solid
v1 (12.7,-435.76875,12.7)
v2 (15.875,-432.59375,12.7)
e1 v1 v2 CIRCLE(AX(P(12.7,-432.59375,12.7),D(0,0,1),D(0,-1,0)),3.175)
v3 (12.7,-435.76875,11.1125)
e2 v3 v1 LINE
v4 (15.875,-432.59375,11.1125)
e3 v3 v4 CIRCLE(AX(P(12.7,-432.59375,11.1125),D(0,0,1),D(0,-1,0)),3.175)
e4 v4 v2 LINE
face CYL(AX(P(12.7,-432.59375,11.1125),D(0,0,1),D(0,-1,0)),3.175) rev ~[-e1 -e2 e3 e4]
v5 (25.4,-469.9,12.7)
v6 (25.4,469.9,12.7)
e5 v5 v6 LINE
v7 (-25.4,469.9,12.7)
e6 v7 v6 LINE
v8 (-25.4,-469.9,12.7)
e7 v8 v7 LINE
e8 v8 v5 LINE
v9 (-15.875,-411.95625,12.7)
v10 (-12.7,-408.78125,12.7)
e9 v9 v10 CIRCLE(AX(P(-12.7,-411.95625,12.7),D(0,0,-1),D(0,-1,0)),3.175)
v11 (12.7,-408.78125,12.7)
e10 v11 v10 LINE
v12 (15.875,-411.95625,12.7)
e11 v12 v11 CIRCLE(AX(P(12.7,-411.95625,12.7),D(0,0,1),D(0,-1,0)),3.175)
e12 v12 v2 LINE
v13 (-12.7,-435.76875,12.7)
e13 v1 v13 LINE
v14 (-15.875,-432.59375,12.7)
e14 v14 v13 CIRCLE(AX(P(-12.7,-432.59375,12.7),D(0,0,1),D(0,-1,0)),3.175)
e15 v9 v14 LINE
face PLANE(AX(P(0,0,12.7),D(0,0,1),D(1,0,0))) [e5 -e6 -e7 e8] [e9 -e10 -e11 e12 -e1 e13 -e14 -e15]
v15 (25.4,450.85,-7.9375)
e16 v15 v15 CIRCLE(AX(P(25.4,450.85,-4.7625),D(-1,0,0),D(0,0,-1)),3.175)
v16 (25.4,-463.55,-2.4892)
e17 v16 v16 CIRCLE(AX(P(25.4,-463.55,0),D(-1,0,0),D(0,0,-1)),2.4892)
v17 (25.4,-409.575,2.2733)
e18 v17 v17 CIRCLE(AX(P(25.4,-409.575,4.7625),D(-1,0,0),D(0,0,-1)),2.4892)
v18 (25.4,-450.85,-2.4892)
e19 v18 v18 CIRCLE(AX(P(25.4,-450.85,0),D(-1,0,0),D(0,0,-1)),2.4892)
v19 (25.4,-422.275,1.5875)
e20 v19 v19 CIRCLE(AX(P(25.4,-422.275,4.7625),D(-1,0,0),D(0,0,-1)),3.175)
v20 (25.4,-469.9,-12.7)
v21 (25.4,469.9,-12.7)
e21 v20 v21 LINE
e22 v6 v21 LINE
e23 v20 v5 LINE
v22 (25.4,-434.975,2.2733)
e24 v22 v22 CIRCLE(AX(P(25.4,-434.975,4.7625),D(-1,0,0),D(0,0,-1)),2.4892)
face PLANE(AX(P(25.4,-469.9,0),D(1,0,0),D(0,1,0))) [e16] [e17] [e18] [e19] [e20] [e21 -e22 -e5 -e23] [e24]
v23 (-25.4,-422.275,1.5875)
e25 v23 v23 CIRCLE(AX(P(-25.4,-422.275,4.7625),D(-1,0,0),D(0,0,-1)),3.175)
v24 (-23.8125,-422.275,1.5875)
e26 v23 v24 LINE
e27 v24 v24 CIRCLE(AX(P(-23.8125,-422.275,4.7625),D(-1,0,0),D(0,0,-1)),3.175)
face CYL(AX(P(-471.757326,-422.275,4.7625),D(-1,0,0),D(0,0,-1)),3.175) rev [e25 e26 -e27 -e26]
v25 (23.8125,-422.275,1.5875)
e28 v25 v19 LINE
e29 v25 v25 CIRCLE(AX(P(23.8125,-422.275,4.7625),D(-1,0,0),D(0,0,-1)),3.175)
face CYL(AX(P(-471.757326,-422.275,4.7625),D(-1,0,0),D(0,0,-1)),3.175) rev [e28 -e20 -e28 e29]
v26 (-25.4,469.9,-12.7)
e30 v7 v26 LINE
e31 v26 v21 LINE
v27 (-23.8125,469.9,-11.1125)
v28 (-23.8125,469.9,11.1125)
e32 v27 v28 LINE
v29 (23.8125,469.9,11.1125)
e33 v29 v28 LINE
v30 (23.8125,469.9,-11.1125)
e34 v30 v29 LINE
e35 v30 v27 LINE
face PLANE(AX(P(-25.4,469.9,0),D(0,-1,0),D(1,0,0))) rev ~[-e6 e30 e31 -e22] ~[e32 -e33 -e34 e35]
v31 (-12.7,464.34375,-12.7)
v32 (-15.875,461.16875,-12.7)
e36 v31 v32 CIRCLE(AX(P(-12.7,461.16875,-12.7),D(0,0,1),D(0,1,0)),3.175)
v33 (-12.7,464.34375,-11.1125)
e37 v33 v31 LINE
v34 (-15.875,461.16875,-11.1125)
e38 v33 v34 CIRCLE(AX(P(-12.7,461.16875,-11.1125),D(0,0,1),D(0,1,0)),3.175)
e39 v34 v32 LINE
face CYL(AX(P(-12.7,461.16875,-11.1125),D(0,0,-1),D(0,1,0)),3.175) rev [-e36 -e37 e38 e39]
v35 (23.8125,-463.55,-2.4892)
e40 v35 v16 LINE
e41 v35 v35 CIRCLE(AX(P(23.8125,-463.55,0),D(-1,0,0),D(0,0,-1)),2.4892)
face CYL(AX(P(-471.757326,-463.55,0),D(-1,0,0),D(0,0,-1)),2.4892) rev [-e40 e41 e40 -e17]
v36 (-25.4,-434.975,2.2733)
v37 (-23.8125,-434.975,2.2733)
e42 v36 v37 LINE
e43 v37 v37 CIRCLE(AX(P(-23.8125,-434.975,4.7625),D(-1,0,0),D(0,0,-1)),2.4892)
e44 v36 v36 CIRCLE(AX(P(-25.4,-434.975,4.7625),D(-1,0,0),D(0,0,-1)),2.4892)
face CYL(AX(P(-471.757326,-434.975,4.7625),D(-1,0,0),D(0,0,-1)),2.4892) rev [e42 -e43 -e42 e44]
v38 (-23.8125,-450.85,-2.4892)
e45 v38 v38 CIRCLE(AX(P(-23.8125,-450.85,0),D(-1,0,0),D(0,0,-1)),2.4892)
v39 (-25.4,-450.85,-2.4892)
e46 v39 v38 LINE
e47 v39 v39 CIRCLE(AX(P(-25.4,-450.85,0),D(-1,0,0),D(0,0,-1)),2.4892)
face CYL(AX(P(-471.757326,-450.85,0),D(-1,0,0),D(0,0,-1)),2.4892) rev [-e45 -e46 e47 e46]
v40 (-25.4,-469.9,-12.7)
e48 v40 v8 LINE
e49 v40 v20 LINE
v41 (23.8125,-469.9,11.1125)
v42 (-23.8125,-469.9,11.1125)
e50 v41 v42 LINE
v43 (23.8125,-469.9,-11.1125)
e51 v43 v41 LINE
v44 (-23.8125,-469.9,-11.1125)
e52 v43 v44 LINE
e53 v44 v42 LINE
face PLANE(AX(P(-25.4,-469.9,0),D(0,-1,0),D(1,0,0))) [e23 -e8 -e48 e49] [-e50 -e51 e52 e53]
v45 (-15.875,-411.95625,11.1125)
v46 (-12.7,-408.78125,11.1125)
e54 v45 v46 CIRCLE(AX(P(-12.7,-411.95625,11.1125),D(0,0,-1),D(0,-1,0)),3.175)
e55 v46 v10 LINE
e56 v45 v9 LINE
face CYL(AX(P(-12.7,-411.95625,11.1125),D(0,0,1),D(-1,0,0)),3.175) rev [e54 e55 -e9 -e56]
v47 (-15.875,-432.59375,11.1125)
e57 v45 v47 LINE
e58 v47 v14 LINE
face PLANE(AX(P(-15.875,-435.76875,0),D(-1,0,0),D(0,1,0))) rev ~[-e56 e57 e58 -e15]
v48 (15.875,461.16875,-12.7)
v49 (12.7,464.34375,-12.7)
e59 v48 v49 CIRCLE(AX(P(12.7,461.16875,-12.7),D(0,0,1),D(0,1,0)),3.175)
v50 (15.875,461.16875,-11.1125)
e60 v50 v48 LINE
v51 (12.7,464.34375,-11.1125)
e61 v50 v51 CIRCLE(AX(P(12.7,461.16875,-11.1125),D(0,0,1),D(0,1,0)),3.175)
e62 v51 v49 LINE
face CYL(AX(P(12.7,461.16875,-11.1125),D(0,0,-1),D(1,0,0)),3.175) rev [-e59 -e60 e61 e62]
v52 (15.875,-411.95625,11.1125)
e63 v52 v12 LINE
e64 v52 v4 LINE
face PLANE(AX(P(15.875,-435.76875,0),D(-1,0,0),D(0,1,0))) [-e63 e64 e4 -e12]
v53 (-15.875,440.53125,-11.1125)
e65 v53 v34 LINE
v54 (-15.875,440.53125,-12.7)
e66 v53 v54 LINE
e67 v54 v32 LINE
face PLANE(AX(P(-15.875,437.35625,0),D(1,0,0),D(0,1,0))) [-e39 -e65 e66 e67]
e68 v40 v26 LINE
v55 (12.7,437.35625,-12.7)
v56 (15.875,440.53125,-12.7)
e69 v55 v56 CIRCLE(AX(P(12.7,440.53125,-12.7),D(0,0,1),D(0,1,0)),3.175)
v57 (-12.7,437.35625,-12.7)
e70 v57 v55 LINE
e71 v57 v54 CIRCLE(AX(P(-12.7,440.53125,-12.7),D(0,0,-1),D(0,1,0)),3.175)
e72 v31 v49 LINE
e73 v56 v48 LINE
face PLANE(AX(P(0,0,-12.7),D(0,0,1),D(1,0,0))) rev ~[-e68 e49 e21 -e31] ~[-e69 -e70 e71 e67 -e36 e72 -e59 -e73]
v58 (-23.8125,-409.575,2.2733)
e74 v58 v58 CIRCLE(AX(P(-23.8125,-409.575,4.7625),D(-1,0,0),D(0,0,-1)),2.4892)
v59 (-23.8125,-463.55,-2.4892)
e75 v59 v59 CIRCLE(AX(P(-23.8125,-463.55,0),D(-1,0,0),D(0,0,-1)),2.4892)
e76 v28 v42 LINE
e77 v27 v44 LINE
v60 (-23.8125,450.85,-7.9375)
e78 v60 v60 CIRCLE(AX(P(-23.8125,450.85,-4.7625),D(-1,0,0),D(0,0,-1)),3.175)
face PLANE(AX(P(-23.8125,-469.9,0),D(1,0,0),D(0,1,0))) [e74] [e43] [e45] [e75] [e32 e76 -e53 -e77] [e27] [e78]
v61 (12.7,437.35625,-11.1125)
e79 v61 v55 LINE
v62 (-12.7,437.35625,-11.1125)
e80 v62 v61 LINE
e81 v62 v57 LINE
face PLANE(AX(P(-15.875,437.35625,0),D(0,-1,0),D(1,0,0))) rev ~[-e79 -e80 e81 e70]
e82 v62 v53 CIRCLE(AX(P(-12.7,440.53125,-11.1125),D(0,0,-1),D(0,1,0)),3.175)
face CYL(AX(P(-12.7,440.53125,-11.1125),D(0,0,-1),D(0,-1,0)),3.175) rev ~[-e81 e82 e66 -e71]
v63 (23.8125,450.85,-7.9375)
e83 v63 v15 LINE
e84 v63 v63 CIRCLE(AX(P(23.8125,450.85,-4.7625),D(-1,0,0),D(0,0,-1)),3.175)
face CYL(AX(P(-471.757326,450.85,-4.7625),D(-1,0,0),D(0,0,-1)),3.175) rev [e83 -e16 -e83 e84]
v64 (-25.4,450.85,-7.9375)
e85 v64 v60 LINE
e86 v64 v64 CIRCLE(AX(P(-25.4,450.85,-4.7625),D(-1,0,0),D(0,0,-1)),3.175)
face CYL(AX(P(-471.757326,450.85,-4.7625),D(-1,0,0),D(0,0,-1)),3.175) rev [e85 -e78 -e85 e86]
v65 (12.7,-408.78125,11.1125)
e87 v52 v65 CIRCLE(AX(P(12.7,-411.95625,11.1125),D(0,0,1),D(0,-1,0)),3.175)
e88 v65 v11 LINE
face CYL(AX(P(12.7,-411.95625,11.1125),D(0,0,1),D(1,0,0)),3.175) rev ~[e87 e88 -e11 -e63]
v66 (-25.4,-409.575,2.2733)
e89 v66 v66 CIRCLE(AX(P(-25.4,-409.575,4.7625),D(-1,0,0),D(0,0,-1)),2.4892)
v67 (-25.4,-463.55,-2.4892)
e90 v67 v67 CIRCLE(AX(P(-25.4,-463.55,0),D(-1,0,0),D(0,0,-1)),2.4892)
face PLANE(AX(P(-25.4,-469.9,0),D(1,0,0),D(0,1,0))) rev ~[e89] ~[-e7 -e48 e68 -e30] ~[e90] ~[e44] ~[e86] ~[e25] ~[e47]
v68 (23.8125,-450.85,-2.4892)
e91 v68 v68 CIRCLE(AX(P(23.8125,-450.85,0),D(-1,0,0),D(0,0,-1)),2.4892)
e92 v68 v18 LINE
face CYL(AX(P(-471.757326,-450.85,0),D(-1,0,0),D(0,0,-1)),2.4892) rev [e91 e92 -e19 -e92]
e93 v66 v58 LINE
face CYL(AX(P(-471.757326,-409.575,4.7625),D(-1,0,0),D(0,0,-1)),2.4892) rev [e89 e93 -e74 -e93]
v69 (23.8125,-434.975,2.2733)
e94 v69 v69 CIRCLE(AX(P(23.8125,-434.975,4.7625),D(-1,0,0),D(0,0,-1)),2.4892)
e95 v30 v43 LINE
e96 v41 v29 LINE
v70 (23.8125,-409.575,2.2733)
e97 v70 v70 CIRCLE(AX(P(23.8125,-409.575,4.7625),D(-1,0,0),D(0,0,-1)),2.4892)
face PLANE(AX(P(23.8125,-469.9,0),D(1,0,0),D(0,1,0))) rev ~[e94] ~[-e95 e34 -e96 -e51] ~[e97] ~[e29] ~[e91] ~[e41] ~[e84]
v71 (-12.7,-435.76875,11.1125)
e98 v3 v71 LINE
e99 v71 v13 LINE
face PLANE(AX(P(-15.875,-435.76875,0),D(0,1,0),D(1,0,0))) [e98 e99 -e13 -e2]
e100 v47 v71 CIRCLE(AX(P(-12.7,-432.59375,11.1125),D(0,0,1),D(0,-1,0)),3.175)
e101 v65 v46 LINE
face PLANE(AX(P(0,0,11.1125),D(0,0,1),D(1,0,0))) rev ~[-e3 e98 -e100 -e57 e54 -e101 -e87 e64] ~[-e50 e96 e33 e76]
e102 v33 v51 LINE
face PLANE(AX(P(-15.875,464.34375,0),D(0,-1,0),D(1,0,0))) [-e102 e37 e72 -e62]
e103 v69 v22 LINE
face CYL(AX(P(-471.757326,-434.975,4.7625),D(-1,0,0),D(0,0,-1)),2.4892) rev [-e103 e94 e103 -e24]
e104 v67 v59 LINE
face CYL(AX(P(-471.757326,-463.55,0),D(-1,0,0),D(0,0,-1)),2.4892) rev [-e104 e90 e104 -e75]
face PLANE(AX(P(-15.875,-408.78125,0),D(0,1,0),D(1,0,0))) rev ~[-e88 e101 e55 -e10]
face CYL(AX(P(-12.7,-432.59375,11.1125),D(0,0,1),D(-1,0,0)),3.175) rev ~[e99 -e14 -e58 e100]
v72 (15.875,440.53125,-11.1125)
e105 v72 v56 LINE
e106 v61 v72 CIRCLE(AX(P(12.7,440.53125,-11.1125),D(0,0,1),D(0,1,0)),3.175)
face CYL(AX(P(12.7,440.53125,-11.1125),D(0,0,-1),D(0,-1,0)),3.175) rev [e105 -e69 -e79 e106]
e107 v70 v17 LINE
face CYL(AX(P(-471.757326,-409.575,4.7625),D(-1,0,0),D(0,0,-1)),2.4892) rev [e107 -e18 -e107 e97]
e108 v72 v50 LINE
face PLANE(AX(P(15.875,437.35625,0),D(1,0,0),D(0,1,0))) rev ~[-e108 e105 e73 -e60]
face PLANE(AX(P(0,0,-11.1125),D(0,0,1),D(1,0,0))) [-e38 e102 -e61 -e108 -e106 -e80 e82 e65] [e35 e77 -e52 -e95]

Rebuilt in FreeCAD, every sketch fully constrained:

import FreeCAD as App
import Part
import Sketcher

V = App.Vector
Q = App.Units.Quantity


def edges_at(feature, points):
    """Names of the edges that pass closest to the given points."""
    edges = feature.Shape.Edges
    near = lambda p: min(range(len(edges)), key=lambda i: edges[i].distToShape(Part.Vertex(*p))[0])
    return sorted({f"Edge{near(p) + 1}" for p in points})


def faces_at(feature, points):
    """Names of the faces that lie closest to the given points."""
    faces = feature.Shape.Faces
    near = lambda p: min(range(len(faces)), key=lambda i: faces[i].distToShape(Part.Vertex(*p))[0])
    return sorted({f"Face{near(p) + 1}" for p in points})


def add_polygon(sketch, points):
    """Adds a closed chain of lines whose ends are joined by coincident constraints."""
    first, n = sketch.GeometryCount, len(points)
    for a, b in zip(points, points[1:] + points[:1]):
        sketch.addGeometry(Part.LineSegment(App.Vector(*a, 0), App.Vector(*b, 0)), False)
    for i in range(n):
        sketch.addConstraint(Sketcher.Constraint("Coincident", first + i, 2, first + (i + 1) % n, 1))

doc = App.newDocument("Part")
body = doc.addObject("PartDesign::Body", "Body")

# Sketch on XY plane
sketch1 = body.newObject("Sketcher::SketchObject", "Sketch")
sketch1.AttachmentSupport = (doc.getObject("XY_Plane"), [""])
sketch1.MapMode = "FlatFace"
add_polygon(sketch1, [(-25.4, 469.9), (-25.4, -469.9), (25.4, -469.9), (25.4, 469.9)])  # lines 0-3
sketch1.addConstraint(Sketcher.Constraint("Vertical", 0))
sketch1.addConstraint(Sketcher.Constraint("Horizontal", 1))
sketch1.addConstraint(Sketcher.Constraint("Vertical", 2))
sketch1.addConstraint(Sketcher.Constraint("Horizontal", 3))
sketch1.addConstraint(Sketcher.Constraint("Symmetric", 0, 2, 2, 2, -1, 1))
sketch1.addConstraint(Sketcher.Constraint("DistanceX", 1, 1, 1, 2, Q("2 in")))
sketch1.addConstraint(Sketcher.Constraint("DistanceY", 0, 2, 0, 1, Q("37 in")))
pad1 = body.newObject("PartDesign::Pad", "Pad")
pad1.Profile = sketch1
pad1.Length = Q("1 in")
pad1.Midplane = True
doc.recompute()

thickness = body.newObject("PartDesign::Thickness", "Thickness")
thickness.Base = (pad1, faces_at(pad1, [(0, -469.9, 0), (0, 469.9, 0)]))
thickness.Value = Q("0.0625 in")
thickness.Reversed = True
thickness.Join = "Intersection"

# Sketch on YZ plane
sketch2 = body.newObject("Sketcher::SketchObject", "Sketch001")
sketch2.AttachmentSupport = (doc.getObject("YZ_Plane"), [""])
sketch2.MapMode = "FlatFace"
sketch2.addGeometry(Part.Circle(V(-463.55, 0, 0), V(0, 0, 1), 2.4892), False)
sketch2.addGeometry(Part.Circle(V(-450.85, 0, 0), V(0, 0, 1), 2.4892), False)
sketch2.addConstraint(Sketcher.Constraint("Equal", 0, 1))
sketch2.addConstraint(Sketcher.Constraint("PointOnObject", 0, 3, -1))
sketch2.addConstraint(Sketcher.Constraint("PointOnObject", 1, 3, -1))
sketch2.addConstraint(Sketcher.Constraint("Diameter", 0, Q("0.196 in")))
sketch2.addConstraint(Sketcher.Constraint("DistanceX", 0, 3, 1, 3, Q("0.5 in")))
sketch2.addConstraint(Sketcher.Constraint("DistanceX", 0, 3, -1, 1, Q("18.25 in")))
pocket1 = body.newObject("PartDesign::Pocket", "Pocket")
pocket1.Profile = sketch2
pocket1.Type = "ThroughAll"
pocket1.Midplane = True

# Sketch on YZ plane
sketch3 = body.newObject("Sketcher::SketchObject", "Sketch002")
sketch3.AttachmentSupport = (doc.getObject("YZ_Plane"), [""])
sketch3.MapMode = "FlatFace"
sketch3.addGeometry(Part.Circle(V(-422.275, 4.7625, 0), V(0, 0, 1), 3.175), False)
sketch3.addGeometry(Part.Circle(V(-409.575, 4.7625, 0), V(0, 0, 1), 2.4892), False)
sketch3.addGeometry(Part.Circle(V(-434.975, 4.7625, 0), V(0, 0, 1), 2.4892), False)
sketch3.addConstraint(Sketcher.Constraint("Equal", 1, 2))
sketch3.addConstraint(Sketcher.Constraint("Horizontal", 0, 3, 1, 3))
sketch3.addConstraint(Sketcher.Constraint("Horizontal", 1, 3, 2, 3))
sketch3.addConstraint(Sketcher.Constraint("Diameter", 0, Q("0.25 in")))
sketch3.addConstraint(Sketcher.Constraint("Diameter", 1, Q("0.196 in")))
sketch3.addConstraint(Sketcher.Constraint("DistanceX", 2, 3, 1, 3, Q("1 in")))
sketch3.addConstraint(Sketcher.Constraint("DistanceX", 0, 3, 1, 3, Q("0.5 in")))
sketch3.addConstraint(Sketcher.Constraint("DistanceX", 0, 3, -1, 1, Q("16.625 in")))
sketch3.addConstraint(Sketcher.Constraint("DistanceY", -1, 1, 0, 3, Q("0.1875 in")))
pocket2 = body.newObject("PartDesign::Pocket", "Pocket001")
pocket2.Profile = sketch3
pocket2.Type = "ThroughAll"
pocket2.Midplane = True

# Sketch on XY plane
sketch4 = body.newObject("Sketcher::SketchObject", "Sketch003")
sketch4.AttachmentSupport = (doc.getObject("XY_Plane"), [""])
sketch4.MapMode = "FlatFace"
add_polygon(sketch4, [(-15.875, -408.78125), (-15.875, -435.76875), (15.875, -435.76875), (15.875, -408.78125)])  # lines 0-3
sketch4.addConstraint(Sketcher.Constraint("Vertical", 0))
sketch4.addConstraint(Sketcher.Constraint("Horizontal", 1))
sketch4.addConstraint(Sketcher.Constraint("Vertical", 2))
sketch4.addConstraint(Sketcher.Constraint("Horizontal", 3))
sketch4.addConstraint(Sketcher.Constraint("DistanceX", 1, 1, 1, 2, Q("1.25 in")))
sketch4.addConstraint(Sketcher.Constraint("DistanceY", 0, 2, 0, 1, Q("1.0625 in")))
sketch4.addConstraint(Sketcher.Constraint("DistanceX", 0, 2, -1, 1, Q("0.625 in")))
sketch4.addConstraint(Sketcher.Constraint("DistanceY", 0, 2, -1, 1, Q("17.15625 in")))
pocket3 = body.newObject("PartDesign::Pocket", "Pocket002")
pocket3.Profile = sketch4
pocket3.Type = "ThroughAll"
pocket3.Reversed = True
doc.recompute()

fillet = body.newObject("PartDesign::Fillet", "Fillet")
fillet.Base = (pocket3, edges_at(pocket3, [
    (-15.875, -408.781, 11.906),
    (-15.875, -435.769, 11.906),
    (15.875, -435.769, 11.906),
    (15.875, -408.781, 11.906),
]))
fillet.Radius = Q("0.125 in")

# Sketch on YZ plane
sketch5 = body.newObject("Sketcher::SketchObject", "Sketch004")
sketch5.AttachmentSupport = (doc.getObject("YZ_Plane"), [""])
sketch5.MapMode = "FlatFace"
sketch5.addGeometry(Part.Circle(V(450.85, -4.7625, 0), V(0, 0, 1), 3.175), False)
sketch5.addConstraint(Sketcher.Constraint("Diameter", 0, Q("0.25 in")))
sketch5.addConstraint(Sketcher.Constraint("DistanceX", -1, 1, 0, 3, Q("17.75 in")))
sketch5.addConstraint(Sketcher.Constraint("DistanceY", 0, 3, -1, 1, Q("0.1875 in")))
pocket4 = body.newObject("PartDesign::Pocket", "Pocket003")
pocket4.Profile = sketch5
pocket4.Type = "ThroughAll"
pocket4.Midplane = True

# Sketch on XY plane
sketch6 = body.newObject("Sketcher::SketchObject", "Sketch005")
sketch6.AttachmentSupport = (doc.getObject("XY_Plane"), [""])
sketch6.MapMode = "FlatFace"
add_polygon(sketch6, [(-15.875, 464.34375), (-15.875, 437.35625), (15.875, 437.35625), (15.875, 464.34375)])  # lines 0-3
sketch6.addConstraint(Sketcher.Constraint("Vertical", 0))
sketch6.addConstraint(Sketcher.Constraint("Horizontal", 1))
sketch6.addConstraint(Sketcher.Constraint("Vertical", 2))
sketch6.addConstraint(Sketcher.Constraint("Horizontal", 3))
sketch6.addConstraint(Sketcher.Constraint("DistanceX", 1, 1, 1, 2, Q("1.25 in")))
sketch6.addConstraint(Sketcher.Constraint("DistanceY", 0, 2, 0, 1, Q("1.0625 in")))
sketch6.addConstraint(Sketcher.Constraint("DistanceX", 0, 2, -1, 1, Q("0.625 in")))
sketch6.addConstraint(Sketcher.Constraint("DistanceY", -1, 1, 0, 2, Q("17.21875 in")))
pocket5 = body.newObject("PartDesign::Pocket", "Pocket004")
pocket5.Profile = sketch6
pocket5.Type = "ThroughAll"
doc.recompute()

fillet2 = body.newObject("PartDesign::Fillet", "Fillet001")
fillet2.Base = (pocket5, edges_at(pocket5, [
    (15.875, 464.344, -11.906),
    (15.875, 437.356, -11.906),
    (-15.875, 437.356, -11.906),
    (-15.875, 464.344, -11.906),
]))
fillet2.Radius = Q("0.125 in")

doc.recompute()
